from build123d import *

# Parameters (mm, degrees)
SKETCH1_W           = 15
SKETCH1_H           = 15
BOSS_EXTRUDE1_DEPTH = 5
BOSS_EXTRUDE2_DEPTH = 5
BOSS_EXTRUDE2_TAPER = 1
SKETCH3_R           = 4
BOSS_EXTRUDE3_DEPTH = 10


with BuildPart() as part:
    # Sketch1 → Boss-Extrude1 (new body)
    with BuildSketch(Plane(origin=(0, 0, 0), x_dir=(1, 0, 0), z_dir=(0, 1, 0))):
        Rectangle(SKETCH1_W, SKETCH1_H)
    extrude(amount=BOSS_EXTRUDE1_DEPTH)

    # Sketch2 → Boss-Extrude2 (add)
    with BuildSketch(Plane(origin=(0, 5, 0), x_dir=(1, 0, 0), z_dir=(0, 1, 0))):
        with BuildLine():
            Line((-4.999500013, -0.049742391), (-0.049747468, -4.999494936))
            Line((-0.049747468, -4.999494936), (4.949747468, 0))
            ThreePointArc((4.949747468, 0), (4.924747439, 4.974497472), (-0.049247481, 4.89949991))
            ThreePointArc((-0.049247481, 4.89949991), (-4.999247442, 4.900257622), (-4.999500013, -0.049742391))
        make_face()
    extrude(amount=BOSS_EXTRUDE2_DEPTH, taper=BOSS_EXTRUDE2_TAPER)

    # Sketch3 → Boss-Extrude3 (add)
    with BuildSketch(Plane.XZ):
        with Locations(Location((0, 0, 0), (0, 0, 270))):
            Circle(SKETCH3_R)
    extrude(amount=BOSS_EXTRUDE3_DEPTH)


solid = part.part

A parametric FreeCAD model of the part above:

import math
import FreeCAD as App
import Part
import Sketcher
from FreeCAD import Vector
Q = App.Units.Quantity


def add_polygon(sketch, points):
    """Adds a closed chain of lines whose ends are joined by coincident constraints."""
    first, n = sketch.GeometryCount, len(points)
    for a, b in zip(points, points[1:] + points[:1]):
        sketch.addGeometry(Part.LineSegment(App.Vector(*a, 0), App.Vector(*b, 0)), False)
    for i in range(n):
        sketch.addConstraint(Sketcher.Constraint("Coincident", first + i, 2, first + (i + 1) % n, 1))

doc = App.newDocument("Part")
body = doc.addObject("PartDesign::Body", "Body")

# Sketch on XZ plane
sketch1 = doc.addObject("Sketcher::SketchObject", "Sketch")
body.addObject(sketch1)
sketch1.AttachmentSupport = (doc.XZ_Plane, [""])
sketch1.MapMode = "FlatFace"
add_polygon(sketch1, [(-8, -8), (-8, 8), (8, 8), (8, -8)])  # lines 0-3
sketch1.addConstraint(Sketcher.Constraint("Vertical", 0))
sketch1.addConstraint(Sketcher.Constraint("Horizontal", 1))
sketch1.addConstraint(Sketcher.Constraint("Vertical", 2))
sketch1.addConstraint(Sketcher.Constraint("Horizontal", 3))
sketch1.addConstraint(Sketcher.Constraint("Symmetric", 0, 2, 2, 2, -1, 1))
sketch1.addConstraint(Sketcher.Constraint("Equal", 3, 0))
sketch1.addConstraint(Sketcher.Constraint("DistanceX", 1, 1, 1, 2, Q("15 mm")))
pad1 = doc.addObject("PartDesign::Pad", "Pad")
body.addObject(pad1)
pad1.Profile = sketch1
pad1.Length = 5
pad1.Reversed = True

# Sketch on XZ plane
sketch2 = doc.addObject("Sketcher::SketchObject", "Sketch001")
body.addObject(sketch2)
sketch2.AttachmentSupport = (doc.XZ_Plane, [""])
sketch2.MapMode = "FlatFace"
sketch2.AttachmentOffset = App.Placement(Vector(0, 0, -5), App.Rotation())
sketch2.addGeometry(Part.LineSegment(Vector(-5, 0, 0), Vector(0, 5, 0)), False)
sketch2.addGeometry(Part.LineSegment(Vector(0, 5, 0), Vector(4.9, 0, 0)), False)
sketch2.addGeometry(Part.ArcOfCircle(Part.Circle(Vector(2.5, -2.5, 0), Vector(0, 0, 1), 3.5), math.radians(-136), math.radians(45)), False)
sketch2.addGeometry(Part.ArcOfCircle(Part.Circle(Vector(-2.5, -2.4, 0), Vector(0, 0, 1), 3.5), math.radians(135), math.radians(315)), False)
sketch2.addConstraint(Sketcher.Constraint("Coincident", 0, 2, 1, 1))
sketch2.addConstraint(Sketcher.Constraint("Tangent", 1, 2, 2, 2))
sketch2.addConstraint(Sketcher.Constraint("Coincident", 2, 1, 3, 2))
sketch2.addConstraint(Sketcher.Constraint("Tangent", 3, 1, 0, 1))
sketch2.addConstraint(Sketcher.Constraint("Equal", 2, 3))
sketch2.addConstraint(Sketcher.Constraint("PointOnObject", 1, 2, -1))
sketch2.addConstraint(Sketcher.Constraint("Perpendicular", 0, 1))
sketch2.addConstraint(Sketcher.Constraint("Radius", 2, Q("3.5 mm")))
sketch2.addConstraint(Sketcher.Constraint("Angle", 0, Q("45 deg")))
sketch2.addConstraint(Sketcher.Constraint("DistanceY", 2, 1, -1, 1, Q("4.8995 mm")))
sketch2.addConstraint(Sketcher.Constraint("DistanceX", 3, 1, -1, 1, Q("4.9995 mm")))
sketch2.addConstraint(Sketcher.Constraint("DistanceX", 3, 3, 2, 3, Q("4.9995 mm")))
pad2 = doc.addObject("PartDesign::Pad", "Pad001")
body.addObject(pad2)
pad2.Profile = sketch2
pad2.Length = 5
pad2.Reversed = True
pad2.TaperAngle = -1

# Sketch on XZ plane
sketch3 = doc.addObject("Sketcher::SketchObject", "Sketch002")
body.addObject(sketch3)
sketch3.AttachmentSupport = (doc.XZ_Plane, [""])
sketch3.MapMode = "FlatFace"
sketch3.addGeometry(Part.Circle(Vector(0, 0, 0), Vector(0, 0, 1), 4), False)
sketch3.addConstraint(Sketcher.Constraint("Coincident", 0, 3, -1, 1))
sketch3.addConstraint(Sketcher.Constraint("Diameter", 0, Q("8 mm")))
pad3 = doc.addObject("PartDesign::Pad", "Pad002")
body.addObject(pad3)
pad3.Profile = sketch3
pad3.Length = 10

doc.recompute()
